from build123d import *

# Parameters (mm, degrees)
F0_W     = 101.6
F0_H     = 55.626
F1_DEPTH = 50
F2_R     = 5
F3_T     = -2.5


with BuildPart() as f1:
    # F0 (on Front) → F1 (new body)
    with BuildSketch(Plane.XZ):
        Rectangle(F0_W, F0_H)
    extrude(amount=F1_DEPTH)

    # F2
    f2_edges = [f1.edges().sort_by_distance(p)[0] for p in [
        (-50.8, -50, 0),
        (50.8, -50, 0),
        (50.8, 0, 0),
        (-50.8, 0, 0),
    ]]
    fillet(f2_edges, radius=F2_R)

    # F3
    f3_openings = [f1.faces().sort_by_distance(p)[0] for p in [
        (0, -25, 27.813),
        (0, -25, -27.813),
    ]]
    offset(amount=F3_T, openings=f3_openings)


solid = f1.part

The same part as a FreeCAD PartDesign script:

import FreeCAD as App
import Part
import Sketcher
from FreeCAD import Vector
Q = App.Units.Quantity


def edges_at(feature, points):
    """Names of the edges that pass closest to the given points."""
    edges = feature.Shape.Edges
    near = lambda p: min(range(len(edges)), key=lambda i: edges[i].distToShape(Part.Vertex(*p))[0])
    return sorted({f"Edge{near(p) + 1}" for p in points})


def faces_at(feature, points):
    """Names of the faces that lie closest to the given points."""
    faces = feature.Shape.Faces
    near = lambda p: min(range(len(faces)), key=lambda i: faces[i].distToShape(Part.Vertex(*p))[0])
    return sorted({f"Face{near(p) + 1}" for p in points})

doc = App.newDocument("Part")
body = doc.addObject("PartDesign::Body", "Body")

# Sketch on XZ plane
sketch1 = body.newObject("Sketcher::SketchObject", "Sketch")
sketch1.AttachmentSupport = (doc.getObject("XZ_Plane"), [""])
sketch1.MapMode = "FlatFace"
sketch1.addGeometry(Part.LineSegment(Vector(-51, 28, 0), Vector(-51, -28, 0)), False)
sketch1.addGeometry(Part.LineSegment(Vector(-51, -28, 0), Vector(51, -28, 0)), False)
sketch1.addGeometry(Part.LineSegment(Vector(51, -28, 0), Vector(51, 28, 0)), False)
sketch1.addGeometry(Part.LineSegment(Vector(51, 28, 0), Vector(-51, 28, 0)), False)
sketch1.addConstraint(Sketcher.Constraint("Coincident", 0, 2, 1, 1))
sketch1.addConstraint(Sketcher.Constraint("Coincident", 1, 2, 2, 1))
sketch1.addConstraint(Sketcher.Constraint("Coincident", 2, 2, 3, 1))
sketch1.addConstraint(Sketcher.Constraint("Coincident", 3, 2, 0, 1))
sketch1.addConstraint(Sketcher.Constraint("Vertical", 0))
sketch1.addConstraint(Sketcher.Constraint("Horizontal", 1))
sketch1.addConstraint(Sketcher.Constraint("Vertical", 2))
sketch1.addConstraint(Sketcher.Constraint("Horizontal", 3))
sketch1.addConstraint(Sketcher.Constraint("Symmetric", 0, 2, 2, 2, -1, 1))
sketch1.addConstraint(Sketcher.Constraint("DistanceX", 1, 1, 1, 2, Q("101.6 mm")))
sketch1.addConstraint(Sketcher.Constraint("DistanceY", 0, 2, 0, 1, Q("55.626 mm")))
pad1 = body.newObject("PartDesign::Pad", "Pad")
pad1.Profile = sketch1
pad1.Length = 50
doc.recompute()

fillet = body.newObject("PartDesign::Fillet", "Fillet")
fillet.Base = (pad1, edges_at(pad1, [
    (-50.8, -50, 0),
    (50.8, -50, 0),
    (50.8, 0, 0),
    (-50.8, 0, 0),
]))
fillet.Radius = 5
doc.recompute()

thickness = body.newObject("PartDesign::Thickness", "Thickness")
thickness.Base = (fillet, faces_at(fillet, [(0, -25, 27.813), (0, -25, -27.813)]))
thickness.Value = 2.5
thickness.Reversed = True
thickness.Join = "Arc"

doc.recompute()
